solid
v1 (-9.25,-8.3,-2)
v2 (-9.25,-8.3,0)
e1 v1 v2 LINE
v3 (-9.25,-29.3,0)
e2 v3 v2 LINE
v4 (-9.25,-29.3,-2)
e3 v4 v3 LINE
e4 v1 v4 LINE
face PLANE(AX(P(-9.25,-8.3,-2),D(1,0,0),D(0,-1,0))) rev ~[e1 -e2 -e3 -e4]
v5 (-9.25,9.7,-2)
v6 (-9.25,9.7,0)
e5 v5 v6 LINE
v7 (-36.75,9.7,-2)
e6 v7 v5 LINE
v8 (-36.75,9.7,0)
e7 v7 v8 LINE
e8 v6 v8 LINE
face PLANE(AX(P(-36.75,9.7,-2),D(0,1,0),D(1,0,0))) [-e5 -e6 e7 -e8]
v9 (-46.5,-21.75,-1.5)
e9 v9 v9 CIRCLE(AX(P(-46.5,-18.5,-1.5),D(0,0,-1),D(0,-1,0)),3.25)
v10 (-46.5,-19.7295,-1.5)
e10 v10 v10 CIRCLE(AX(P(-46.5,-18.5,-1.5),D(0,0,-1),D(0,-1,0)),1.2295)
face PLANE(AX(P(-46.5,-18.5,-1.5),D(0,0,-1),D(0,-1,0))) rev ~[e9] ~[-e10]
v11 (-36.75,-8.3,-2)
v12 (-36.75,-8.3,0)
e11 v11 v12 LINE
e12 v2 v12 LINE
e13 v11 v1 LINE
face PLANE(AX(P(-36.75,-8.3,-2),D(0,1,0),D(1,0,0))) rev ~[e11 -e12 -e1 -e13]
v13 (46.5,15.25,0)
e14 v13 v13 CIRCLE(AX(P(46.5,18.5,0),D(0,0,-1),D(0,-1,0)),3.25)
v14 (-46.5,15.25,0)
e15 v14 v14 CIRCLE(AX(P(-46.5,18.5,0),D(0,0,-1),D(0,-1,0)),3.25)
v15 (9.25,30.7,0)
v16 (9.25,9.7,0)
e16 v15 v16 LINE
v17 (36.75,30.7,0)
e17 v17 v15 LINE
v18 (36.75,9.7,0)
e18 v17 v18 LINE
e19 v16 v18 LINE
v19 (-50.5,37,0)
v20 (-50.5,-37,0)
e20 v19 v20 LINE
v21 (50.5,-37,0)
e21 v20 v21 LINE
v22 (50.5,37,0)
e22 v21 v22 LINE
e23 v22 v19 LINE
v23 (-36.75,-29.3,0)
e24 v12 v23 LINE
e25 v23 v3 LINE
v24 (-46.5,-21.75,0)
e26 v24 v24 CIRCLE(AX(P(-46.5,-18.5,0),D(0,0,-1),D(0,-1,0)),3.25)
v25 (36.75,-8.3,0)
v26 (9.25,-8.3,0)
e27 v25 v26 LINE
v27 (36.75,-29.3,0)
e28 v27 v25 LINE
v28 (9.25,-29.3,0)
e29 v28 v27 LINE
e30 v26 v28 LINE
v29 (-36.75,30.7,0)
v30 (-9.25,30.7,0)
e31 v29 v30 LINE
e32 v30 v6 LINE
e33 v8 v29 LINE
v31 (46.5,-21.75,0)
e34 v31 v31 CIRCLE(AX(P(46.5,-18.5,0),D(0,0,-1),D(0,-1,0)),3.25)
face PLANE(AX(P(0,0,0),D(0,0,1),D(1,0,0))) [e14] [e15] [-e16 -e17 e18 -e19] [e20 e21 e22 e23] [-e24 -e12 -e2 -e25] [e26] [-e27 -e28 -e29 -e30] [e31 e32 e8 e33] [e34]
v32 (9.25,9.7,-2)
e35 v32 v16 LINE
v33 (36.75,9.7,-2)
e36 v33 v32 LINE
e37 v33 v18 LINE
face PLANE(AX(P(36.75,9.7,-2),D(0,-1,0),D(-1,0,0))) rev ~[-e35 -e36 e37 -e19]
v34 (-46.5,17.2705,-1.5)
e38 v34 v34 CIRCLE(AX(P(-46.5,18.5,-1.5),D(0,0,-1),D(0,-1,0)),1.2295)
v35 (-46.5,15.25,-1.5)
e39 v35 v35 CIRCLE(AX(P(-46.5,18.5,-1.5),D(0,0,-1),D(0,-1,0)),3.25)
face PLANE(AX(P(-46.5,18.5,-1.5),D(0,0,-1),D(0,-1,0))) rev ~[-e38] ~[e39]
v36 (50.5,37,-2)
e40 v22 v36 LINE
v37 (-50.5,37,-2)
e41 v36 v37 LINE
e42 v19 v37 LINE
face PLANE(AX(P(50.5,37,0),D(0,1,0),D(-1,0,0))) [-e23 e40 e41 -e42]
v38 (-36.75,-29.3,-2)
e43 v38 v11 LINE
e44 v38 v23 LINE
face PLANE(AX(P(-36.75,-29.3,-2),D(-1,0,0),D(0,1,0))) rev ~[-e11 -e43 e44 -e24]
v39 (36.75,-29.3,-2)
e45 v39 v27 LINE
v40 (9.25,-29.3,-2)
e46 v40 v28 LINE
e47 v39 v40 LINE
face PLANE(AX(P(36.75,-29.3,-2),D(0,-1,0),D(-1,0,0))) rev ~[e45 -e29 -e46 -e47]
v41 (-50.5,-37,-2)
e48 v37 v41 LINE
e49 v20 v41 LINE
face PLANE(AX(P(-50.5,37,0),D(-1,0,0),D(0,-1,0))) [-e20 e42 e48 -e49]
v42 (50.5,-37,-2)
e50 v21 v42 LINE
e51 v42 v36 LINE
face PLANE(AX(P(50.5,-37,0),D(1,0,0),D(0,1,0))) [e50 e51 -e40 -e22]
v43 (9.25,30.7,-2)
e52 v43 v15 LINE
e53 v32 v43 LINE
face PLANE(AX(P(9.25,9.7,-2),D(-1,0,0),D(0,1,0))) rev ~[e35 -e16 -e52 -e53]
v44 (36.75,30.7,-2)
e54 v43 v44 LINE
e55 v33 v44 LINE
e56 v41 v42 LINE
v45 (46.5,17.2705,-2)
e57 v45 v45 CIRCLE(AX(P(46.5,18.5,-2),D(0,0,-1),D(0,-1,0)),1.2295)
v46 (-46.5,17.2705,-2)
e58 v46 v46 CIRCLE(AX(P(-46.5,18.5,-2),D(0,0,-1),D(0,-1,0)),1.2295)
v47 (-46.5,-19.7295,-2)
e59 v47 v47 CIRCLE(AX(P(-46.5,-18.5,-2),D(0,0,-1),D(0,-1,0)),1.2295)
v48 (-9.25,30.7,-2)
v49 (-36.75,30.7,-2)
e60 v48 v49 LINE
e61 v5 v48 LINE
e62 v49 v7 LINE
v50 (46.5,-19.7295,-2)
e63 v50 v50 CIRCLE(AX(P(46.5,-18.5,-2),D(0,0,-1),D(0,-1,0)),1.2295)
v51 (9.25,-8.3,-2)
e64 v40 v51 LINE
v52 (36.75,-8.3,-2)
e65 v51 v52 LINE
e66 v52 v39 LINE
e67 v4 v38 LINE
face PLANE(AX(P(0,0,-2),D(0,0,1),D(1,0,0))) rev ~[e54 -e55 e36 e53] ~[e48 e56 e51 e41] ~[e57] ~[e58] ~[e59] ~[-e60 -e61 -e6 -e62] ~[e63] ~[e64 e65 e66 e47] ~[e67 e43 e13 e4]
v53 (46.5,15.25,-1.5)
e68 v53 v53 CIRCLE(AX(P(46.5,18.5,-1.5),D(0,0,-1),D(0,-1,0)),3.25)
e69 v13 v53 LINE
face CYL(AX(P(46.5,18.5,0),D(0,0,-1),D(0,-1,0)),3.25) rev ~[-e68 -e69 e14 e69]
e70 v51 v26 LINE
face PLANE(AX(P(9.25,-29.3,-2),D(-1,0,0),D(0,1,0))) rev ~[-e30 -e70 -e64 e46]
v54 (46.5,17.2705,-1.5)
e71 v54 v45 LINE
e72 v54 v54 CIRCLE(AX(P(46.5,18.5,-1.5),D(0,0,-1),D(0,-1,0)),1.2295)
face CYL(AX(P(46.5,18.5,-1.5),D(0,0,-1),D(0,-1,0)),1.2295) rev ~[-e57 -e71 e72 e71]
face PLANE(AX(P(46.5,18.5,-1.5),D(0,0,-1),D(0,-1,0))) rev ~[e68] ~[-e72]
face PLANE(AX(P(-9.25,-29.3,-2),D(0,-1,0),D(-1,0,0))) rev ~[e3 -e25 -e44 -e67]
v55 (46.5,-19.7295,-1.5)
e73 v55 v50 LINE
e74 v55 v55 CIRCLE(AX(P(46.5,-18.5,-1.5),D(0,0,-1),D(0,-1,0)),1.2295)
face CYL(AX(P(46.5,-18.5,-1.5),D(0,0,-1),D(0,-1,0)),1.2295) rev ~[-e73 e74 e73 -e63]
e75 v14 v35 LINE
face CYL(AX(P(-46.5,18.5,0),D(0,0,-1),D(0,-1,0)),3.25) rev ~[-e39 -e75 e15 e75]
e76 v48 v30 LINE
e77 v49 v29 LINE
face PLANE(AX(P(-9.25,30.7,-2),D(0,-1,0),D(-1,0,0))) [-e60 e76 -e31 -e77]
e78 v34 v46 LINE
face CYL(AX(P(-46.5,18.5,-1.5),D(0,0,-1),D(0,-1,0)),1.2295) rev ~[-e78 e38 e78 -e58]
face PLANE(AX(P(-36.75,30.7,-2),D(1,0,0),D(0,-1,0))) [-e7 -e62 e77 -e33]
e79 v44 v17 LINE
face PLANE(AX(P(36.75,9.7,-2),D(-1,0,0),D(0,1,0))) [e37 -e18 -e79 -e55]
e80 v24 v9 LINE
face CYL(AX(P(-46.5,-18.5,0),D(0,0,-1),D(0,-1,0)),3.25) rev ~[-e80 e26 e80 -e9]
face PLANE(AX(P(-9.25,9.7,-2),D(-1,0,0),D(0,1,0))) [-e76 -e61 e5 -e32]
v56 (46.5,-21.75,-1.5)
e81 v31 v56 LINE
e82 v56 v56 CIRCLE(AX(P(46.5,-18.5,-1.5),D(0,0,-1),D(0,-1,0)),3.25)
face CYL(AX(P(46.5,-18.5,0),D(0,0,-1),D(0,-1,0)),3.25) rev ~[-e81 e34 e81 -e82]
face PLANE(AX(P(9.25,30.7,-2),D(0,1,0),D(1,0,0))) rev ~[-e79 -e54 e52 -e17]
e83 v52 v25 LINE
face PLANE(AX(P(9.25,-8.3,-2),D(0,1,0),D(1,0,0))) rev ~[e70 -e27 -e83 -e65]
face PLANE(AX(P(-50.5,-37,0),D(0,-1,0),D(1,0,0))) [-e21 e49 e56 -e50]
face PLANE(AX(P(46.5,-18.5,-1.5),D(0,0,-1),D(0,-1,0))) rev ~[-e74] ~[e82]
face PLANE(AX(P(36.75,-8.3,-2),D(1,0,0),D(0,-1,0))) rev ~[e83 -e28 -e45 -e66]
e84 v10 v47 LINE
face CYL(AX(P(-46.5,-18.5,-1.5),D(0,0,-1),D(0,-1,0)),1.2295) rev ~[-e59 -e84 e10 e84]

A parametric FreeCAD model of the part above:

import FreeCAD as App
import Part
import Sketcher

doc = App.newDocument("Part")
body = doc.addObject("PartDesign::Body", "Body")

# Sketch on XY plane
sketch1 = body.newObject("Sketcher::SketchObject", "Sketch")
sketch1.AttachmentSupport = (doc.getObject("XY_Plane"), [""])
sketch1.MapMode = "FlatFace"
sketch1.addGeometry([
    Part.LineSegment(App.Vector(-50.5, 37, 0), App.Vector(-50.5, -37, 0)),
    Part.LineSegment(App.Vector(-50.5, -37, 0), App.Vector(50.5, -37, 0)),
    Part.LineSegment(App.Vector(50.5, -37, 0), App.Vector(50.5, 37, 0)),
    Part.LineSegment(App.Vector(50.5, 37, 0), App.Vector(-50.5, 37, 0)),
], False)
sketch1.addConstraint([
    Sketcher.Constraint("Coincident", 0, 2, 1, 1),
    Sketcher.Constraint("Coincident", 1, 2, 2, 1),
    Sketcher.Constraint("Coincident", 2, 2, 3, 1),
    Sketcher.Constraint("Coincident", 3, 2, 0, 1),
    Sketcher.Constraint("Vertical", 0),
    Sketcher.Constraint("Horizontal", 1),
    Sketcher.Constraint("Vertical", 2),
    Sketcher.Constraint("Horizontal", 3),
    Sketcher.Constraint("Symmetric", 0, 2, 2, 2, -1, 1),
    Sketcher.Constraint("DistanceX", 1, 1, 1, 2, 101.0),
    Sketcher.Constraint("DistanceY", 0, 2, 0, 1, 74.0),
])
pad1 = body.newObject("PartDesign::Pad", "Pad")
pad1.Profile = sketch1
pad1.Length = 2
pad1.Reversed = True

# Sketch on XY plane
sketch2 = body.newObject("Sketcher::SketchObject", "Sketch001")
sketch2.AttachmentSupport = (doc.getObject("XY_Plane"), [""])
sketch2.MapMode = "FlatFace"
sketch2.addGeometry([
    Part.Circle(App.Vector(-46.5, 18.5, 0), App.Vector(0, 0, 1), 1.2295),
    Part.Circle(App.Vector(-46.5, -18.5, 0), App.Vector(0, 0, 1), 1.2295),
    Part.Circle(App.Vector(46.5, -18.5, 0), App.Vector(0, 0, 1), 1.2295),
    Part.Circle(App.Vector(46.5, 18.5, 0), App.Vector(0, 0, 1), 1.2295),
], False)
sketch2.addConstraint([
    Sketcher.Constraint("Equal", 0, 1),
    Sketcher.Constraint("Equal", 1, 2),
    Sketcher.Constraint("Equal", 2, 3),
    Sketcher.Constraint("Symmetric", 0, 3, 2, 3, -1, 1),
    Sketcher.Constraint("Symmetric", 1, 3, 3, 3, -1, 1),
    Sketcher.Constraint("Symmetric", 1, 3, 2, 3, -2),
    Sketcher.Constraint("Diameter", 0, 2.459),
    Sketcher.Constraint("DistanceY", 1, 3, 0, 3, 37.0),
    Sketcher.Constraint("DistanceX", 1, 3, 2, 3, 93.0),
])
doc.recompute()
hole = body.newObject("PartDesign::Hole", "Hole")
hole.Profile = sketch2
hole.ThreadType = "None"
hole.Diameter = 2.459
hole.DepthType = "ThroughAll"
hole.HoleCutType = "Counterbore"
hole.HoleCutDiameter = 6.5
hole.HoleCutDepth = 1.5

# Sketch on XY plane
sketch3 = body.newObject("Sketcher::SketchObject", "Sketch002")
sketch3.AttachmentSupport = (doc.getObject("XY_Plane"), [""])
sketch3.MapMode = "FlatFace"
sketch3.AttachmentOffset = App.Placement(App.Vector(0, 0, -2), App.Rotation())
sketch3.addGeometry([
    Part.LineSegment(App.Vector(36.75, 30.7, 0), App.Vector(36.75, 9.7, 0)),  # 0
    Part.LineSegment(App.Vector(36.75, 9.7, 0), App.Vector(9.25, 9.7, 0)),  # 1
    Part.LineSegment(App.Vector(9.25, 9.7, 0), App.Vector(9.25, 30.7, 0)),  # 2
    Part.LineSegment(App.Vector(9.25, 30.7, 0), App.Vector(36.75, 30.7, 0)),  # 3
    Part.LineSegment(App.Vector(-36.75, 30.7, 0), App.Vector(-9.25, 30.7, 0)),  # 4
    Part.LineSegment(App.Vector(-9.25, 30.7, 0), App.Vector(-9.25, 9.7, 0)),  # 5
    Part.LineSegment(App.Vector(-9.25, 9.7, 0), App.Vector(-36.75, 9.7, 0)),  # 6
    Part.LineSegment(App.Vector(-36.75, 9.7, 0), App.Vector(-36.75, 30.7, 0)),  # 7
    Part.LineSegment(App.Vector(9.25, -8.3, 0), App.Vector(36.75, -8.3, 0)),  # 8
    Part.LineSegment(App.Vector(36.75, -8.3, 0), App.Vector(36.75, -29.3, 0)),  # 9
    Part.LineSegment(App.Vector(36.75, -29.3, 0), App.Vector(9.25, -29.3, 0)),  # 10
    Part.LineSegment(App.Vector(9.25, -29.3, 0), App.Vector(9.25, -8.3, 0)),  # 11
    Part.LineSegment(App.Vector(-36.75, -8.3, 0), App.Vector(-9.25, -8.3, 0)),  # 12
    Part.LineSegment(App.Vector(-9.25, -8.3, 0), App.Vector(-9.25, -29.3, 0)),  # 13
    Part.LineSegment(App.Vector(-9.25, -29.3, 0), App.Vector(-36.75, -29.3, 0)),  # 14
    Part.LineSegment(App.Vector(-36.75, -29.3, 0), App.Vector(-36.75, -8.3, 0)),  # 15
], False)
sketch3.addConstraint([
    Sketcher.Constraint("Coincident", 0, 2, 1, 1),
    Sketcher.Constraint("Coincident", 1, 2, 2, 1),
    Sketcher.Constraint("Coincident", 2, 2, 3, 1),
    Sketcher.Constraint("Coincident", 3, 2, 0, 1),
    Sketcher.Constraint("Coincident", 4, 2, 5, 1),
    Sketcher.Constraint("Coincident", 5, 2, 6, 1),
    Sketcher.Constraint("Coincident", 6, 2, 7, 1),
    Sketcher.Constraint("Coincident", 7, 2, 4, 1),
    Sketcher.Constraint("Coincident", 8, 2, 9, 1),
    Sketcher.Constraint("Coincident", 9, 2, 10, 1),
    Sketcher.Constraint("Coincident", 10, 2, 11, 1),
    Sketcher.Constraint("Coincident", 11, 2, 8, 1),
    Sketcher.Constraint("Coincident", 12, 2, 13, 1),
    Sketcher.Constraint("Coincident", 13, 2, 14, 1),
    Sketcher.Constraint("Coincident", 14, 2, 15, 1),
    Sketcher.Constraint("Coincident", 15, 2, 12, 1),
    Sketcher.Constraint("Vertical", 0),
    Sketcher.Constraint("Horizontal", 1),
    Sketcher.Constraint("Vertical", 2),
    Sketcher.Constraint("Horizontal", 3),
    Sketcher.Constraint("Horizontal", 4),
    Sketcher.Constraint("Vertical", 5),
    Sketcher.Constraint("Horizontal", 6),
    Sketcher.Constraint("Vertical", 7),
    Sketcher.Constraint("Horizontal", 8),
    Sketcher.Constraint("Vertical", 9),
    Sketcher.Constraint("Horizontal", 10),
    Sketcher.Constraint("Vertical", 11),
    Sketcher.Constraint("Horizontal", 12),
    Sketcher.Constraint("Vertical", 13),
    Sketcher.Constraint("Horizontal", 14),
    Sketcher.Constraint("Vertical", 15),
    Sketcher.Constraint("Symmetric", 2, 2, 4, 2, -2),
    Sketcher.Constraint("Symmetric", 0, 2, 6, 2, -2),
    Sketcher.Constraint("Symmetric", 11, 2, 12, 2, -2),
    Sketcher.Constraint("Symmetric", 9, 2, 14, 2, -2),
    Sketcher.Constraint("Vertical", 3, 2, 8, 2),
    Sketcher.Constraint("Vertical", 2, 2, 10, 2),
    Sketcher.Constraint("Equal", 7, 9),
    Sketcher.Constraint("DistanceX", 4, 2, 2, 2, 18.5),
    Sketcher.Constraint("DistanceY", 0, 2, 0, 1, 21.0),
    Sketcher.Constraint("DistanceX", 1, 2, 1, 1, 27.5),
    Sketcher.Constraint("DistanceY", 8, 2, 0, 2, 18.0),
    Sketcher.Constraint("DistanceY", -1, 1, 0, 2, 9.7),
])
pocket1 = body.newObject("PartDesign::Pocket", "Pocket")
pocket1.Profile = sketch3
pocket1.Length = 10
pocket1.Reversed = True

doc.recompute()
